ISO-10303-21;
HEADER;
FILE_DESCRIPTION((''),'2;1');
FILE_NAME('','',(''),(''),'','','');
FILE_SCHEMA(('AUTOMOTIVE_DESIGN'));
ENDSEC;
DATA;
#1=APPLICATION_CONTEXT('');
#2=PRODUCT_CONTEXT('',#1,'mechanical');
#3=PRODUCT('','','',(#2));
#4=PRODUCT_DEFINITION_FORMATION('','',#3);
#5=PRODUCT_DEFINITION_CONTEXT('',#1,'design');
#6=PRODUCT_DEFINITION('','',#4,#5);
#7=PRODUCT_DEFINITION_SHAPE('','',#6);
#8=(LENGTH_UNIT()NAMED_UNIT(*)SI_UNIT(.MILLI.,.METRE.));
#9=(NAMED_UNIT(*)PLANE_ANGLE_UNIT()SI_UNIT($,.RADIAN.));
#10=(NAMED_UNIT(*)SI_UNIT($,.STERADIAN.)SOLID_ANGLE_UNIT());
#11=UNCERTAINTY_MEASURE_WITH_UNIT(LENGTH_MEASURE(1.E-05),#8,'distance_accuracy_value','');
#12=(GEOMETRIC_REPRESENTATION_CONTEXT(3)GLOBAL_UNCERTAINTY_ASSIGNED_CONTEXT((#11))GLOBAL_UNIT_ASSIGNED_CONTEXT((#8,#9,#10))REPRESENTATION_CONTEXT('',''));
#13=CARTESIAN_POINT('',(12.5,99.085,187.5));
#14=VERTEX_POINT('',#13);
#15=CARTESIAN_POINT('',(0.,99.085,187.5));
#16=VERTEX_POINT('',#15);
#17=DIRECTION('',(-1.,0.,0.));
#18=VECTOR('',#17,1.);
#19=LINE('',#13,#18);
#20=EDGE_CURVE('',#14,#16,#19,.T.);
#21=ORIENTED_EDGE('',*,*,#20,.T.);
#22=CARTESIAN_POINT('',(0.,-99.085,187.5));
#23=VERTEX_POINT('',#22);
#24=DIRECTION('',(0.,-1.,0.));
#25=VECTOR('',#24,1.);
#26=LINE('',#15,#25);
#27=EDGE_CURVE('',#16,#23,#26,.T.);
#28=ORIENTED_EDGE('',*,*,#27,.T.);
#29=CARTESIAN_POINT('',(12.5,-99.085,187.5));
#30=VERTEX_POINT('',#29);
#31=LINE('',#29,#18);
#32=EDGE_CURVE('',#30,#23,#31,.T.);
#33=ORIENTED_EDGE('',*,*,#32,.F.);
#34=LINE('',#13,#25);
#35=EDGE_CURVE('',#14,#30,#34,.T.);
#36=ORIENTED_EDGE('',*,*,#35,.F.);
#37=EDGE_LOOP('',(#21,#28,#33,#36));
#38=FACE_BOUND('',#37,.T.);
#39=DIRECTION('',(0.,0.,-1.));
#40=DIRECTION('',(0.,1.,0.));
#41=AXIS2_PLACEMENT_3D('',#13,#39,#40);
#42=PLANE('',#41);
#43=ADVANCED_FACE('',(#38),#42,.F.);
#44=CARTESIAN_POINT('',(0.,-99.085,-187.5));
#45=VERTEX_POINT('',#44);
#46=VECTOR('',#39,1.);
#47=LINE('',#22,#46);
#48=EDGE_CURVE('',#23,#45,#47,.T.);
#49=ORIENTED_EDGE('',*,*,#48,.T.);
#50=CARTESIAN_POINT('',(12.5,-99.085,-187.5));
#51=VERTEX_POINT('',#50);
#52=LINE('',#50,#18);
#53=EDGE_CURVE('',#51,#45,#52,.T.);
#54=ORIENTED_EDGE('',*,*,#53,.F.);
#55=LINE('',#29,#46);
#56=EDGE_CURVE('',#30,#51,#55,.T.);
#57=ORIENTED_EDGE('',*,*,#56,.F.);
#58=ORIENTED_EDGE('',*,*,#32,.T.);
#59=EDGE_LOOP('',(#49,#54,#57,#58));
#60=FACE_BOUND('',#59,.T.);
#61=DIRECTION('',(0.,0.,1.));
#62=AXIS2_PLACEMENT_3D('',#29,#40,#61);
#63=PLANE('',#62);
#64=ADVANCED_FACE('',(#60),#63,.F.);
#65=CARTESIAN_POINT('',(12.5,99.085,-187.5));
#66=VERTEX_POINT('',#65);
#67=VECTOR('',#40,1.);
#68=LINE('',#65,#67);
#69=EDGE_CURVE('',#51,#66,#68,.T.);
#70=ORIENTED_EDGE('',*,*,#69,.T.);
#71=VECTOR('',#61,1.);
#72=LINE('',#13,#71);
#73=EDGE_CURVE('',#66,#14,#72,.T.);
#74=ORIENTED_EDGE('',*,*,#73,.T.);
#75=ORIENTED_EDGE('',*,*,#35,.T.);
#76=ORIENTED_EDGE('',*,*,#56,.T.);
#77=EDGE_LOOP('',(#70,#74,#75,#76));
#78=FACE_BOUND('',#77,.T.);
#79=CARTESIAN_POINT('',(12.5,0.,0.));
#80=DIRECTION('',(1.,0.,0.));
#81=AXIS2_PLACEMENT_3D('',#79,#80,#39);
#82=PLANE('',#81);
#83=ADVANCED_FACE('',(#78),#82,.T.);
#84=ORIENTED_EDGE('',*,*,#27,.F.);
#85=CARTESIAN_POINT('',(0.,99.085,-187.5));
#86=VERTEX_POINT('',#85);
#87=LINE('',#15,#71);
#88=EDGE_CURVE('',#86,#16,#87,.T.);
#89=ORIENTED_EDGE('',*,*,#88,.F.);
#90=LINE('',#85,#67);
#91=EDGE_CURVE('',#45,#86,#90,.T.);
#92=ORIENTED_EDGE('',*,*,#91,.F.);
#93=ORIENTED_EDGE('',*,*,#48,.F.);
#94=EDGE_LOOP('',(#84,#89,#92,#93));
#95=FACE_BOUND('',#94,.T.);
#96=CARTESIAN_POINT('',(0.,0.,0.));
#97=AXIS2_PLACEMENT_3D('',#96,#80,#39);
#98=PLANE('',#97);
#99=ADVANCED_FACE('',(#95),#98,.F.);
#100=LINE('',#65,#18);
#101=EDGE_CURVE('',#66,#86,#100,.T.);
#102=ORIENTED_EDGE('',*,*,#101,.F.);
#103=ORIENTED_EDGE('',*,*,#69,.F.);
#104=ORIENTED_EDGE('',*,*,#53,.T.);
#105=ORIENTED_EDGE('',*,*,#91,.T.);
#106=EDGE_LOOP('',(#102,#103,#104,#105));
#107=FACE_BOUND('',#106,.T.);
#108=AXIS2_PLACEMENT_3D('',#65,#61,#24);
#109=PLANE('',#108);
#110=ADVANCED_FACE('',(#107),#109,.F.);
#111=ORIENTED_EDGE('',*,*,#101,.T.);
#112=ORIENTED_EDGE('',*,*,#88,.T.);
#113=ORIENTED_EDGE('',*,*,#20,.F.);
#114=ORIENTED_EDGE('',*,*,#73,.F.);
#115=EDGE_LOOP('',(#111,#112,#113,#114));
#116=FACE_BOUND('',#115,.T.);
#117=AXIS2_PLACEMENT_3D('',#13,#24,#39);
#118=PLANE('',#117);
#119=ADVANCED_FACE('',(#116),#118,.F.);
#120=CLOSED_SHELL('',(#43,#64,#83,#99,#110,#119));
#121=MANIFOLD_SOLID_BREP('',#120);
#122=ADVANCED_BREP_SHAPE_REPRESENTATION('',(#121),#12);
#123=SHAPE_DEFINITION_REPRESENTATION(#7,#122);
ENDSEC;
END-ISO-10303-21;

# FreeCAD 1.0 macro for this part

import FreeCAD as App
import Part
import Sketcher

V = App.Vector


def add_polygon(sketch, points):
    """Adds a closed chain of lines whose ends are joined by coincident constraints."""
    first, n = sketch.GeometryCount, len(points)
    for a, b in zip(points, points[1:] + points[:1]):
        sketch.addGeometry(Part.LineSegment(App.Vector(*a, 0), App.Vector(*b, 0)), False)
    for i in range(n):
        sketch.addConstraint(Sketcher.Constraint("Coincident", first + i, 2, first + (i + 1) % n, 1))

doc = App.newDocument("Part")
body = doc.addObject("PartDesign::Body", "Body")

sketch1 = body.newObject("Sketcher::SketchObject", "Sketch")
sketch1.AttachmentSupport = (doc.getObject("YZ_Plane"), [""])
sketch1.MapMode = "FlatFace"
add_polygon(sketch1, [(99, 188), (-99, 188), (-99, -188), (99, -188)])
sketch1.addConstraint([
    Sketcher.Constraint("Horizontal", 0),
    Sketcher.Constraint("Vertical", 1),
    Sketcher.Constraint("Horizontal", 2),
    Sketcher.Constraint("Vertical", 3),
    Sketcher.Constraint("Symmetric", 0, 2, 2, 2, -1, 1),
    Sketcher.Constraint("DistanceY", 1, 2, 1, 1, 375.0),
    Sketcher.Constraint("DistanceX", 0, 2, 0, 1, 198.17),
])
pad1 = body.newObject("PartDesign::Pad", "Pad")
pad1.Profile = sketch1
pad1.Length = 12.5

doc.recompute()
